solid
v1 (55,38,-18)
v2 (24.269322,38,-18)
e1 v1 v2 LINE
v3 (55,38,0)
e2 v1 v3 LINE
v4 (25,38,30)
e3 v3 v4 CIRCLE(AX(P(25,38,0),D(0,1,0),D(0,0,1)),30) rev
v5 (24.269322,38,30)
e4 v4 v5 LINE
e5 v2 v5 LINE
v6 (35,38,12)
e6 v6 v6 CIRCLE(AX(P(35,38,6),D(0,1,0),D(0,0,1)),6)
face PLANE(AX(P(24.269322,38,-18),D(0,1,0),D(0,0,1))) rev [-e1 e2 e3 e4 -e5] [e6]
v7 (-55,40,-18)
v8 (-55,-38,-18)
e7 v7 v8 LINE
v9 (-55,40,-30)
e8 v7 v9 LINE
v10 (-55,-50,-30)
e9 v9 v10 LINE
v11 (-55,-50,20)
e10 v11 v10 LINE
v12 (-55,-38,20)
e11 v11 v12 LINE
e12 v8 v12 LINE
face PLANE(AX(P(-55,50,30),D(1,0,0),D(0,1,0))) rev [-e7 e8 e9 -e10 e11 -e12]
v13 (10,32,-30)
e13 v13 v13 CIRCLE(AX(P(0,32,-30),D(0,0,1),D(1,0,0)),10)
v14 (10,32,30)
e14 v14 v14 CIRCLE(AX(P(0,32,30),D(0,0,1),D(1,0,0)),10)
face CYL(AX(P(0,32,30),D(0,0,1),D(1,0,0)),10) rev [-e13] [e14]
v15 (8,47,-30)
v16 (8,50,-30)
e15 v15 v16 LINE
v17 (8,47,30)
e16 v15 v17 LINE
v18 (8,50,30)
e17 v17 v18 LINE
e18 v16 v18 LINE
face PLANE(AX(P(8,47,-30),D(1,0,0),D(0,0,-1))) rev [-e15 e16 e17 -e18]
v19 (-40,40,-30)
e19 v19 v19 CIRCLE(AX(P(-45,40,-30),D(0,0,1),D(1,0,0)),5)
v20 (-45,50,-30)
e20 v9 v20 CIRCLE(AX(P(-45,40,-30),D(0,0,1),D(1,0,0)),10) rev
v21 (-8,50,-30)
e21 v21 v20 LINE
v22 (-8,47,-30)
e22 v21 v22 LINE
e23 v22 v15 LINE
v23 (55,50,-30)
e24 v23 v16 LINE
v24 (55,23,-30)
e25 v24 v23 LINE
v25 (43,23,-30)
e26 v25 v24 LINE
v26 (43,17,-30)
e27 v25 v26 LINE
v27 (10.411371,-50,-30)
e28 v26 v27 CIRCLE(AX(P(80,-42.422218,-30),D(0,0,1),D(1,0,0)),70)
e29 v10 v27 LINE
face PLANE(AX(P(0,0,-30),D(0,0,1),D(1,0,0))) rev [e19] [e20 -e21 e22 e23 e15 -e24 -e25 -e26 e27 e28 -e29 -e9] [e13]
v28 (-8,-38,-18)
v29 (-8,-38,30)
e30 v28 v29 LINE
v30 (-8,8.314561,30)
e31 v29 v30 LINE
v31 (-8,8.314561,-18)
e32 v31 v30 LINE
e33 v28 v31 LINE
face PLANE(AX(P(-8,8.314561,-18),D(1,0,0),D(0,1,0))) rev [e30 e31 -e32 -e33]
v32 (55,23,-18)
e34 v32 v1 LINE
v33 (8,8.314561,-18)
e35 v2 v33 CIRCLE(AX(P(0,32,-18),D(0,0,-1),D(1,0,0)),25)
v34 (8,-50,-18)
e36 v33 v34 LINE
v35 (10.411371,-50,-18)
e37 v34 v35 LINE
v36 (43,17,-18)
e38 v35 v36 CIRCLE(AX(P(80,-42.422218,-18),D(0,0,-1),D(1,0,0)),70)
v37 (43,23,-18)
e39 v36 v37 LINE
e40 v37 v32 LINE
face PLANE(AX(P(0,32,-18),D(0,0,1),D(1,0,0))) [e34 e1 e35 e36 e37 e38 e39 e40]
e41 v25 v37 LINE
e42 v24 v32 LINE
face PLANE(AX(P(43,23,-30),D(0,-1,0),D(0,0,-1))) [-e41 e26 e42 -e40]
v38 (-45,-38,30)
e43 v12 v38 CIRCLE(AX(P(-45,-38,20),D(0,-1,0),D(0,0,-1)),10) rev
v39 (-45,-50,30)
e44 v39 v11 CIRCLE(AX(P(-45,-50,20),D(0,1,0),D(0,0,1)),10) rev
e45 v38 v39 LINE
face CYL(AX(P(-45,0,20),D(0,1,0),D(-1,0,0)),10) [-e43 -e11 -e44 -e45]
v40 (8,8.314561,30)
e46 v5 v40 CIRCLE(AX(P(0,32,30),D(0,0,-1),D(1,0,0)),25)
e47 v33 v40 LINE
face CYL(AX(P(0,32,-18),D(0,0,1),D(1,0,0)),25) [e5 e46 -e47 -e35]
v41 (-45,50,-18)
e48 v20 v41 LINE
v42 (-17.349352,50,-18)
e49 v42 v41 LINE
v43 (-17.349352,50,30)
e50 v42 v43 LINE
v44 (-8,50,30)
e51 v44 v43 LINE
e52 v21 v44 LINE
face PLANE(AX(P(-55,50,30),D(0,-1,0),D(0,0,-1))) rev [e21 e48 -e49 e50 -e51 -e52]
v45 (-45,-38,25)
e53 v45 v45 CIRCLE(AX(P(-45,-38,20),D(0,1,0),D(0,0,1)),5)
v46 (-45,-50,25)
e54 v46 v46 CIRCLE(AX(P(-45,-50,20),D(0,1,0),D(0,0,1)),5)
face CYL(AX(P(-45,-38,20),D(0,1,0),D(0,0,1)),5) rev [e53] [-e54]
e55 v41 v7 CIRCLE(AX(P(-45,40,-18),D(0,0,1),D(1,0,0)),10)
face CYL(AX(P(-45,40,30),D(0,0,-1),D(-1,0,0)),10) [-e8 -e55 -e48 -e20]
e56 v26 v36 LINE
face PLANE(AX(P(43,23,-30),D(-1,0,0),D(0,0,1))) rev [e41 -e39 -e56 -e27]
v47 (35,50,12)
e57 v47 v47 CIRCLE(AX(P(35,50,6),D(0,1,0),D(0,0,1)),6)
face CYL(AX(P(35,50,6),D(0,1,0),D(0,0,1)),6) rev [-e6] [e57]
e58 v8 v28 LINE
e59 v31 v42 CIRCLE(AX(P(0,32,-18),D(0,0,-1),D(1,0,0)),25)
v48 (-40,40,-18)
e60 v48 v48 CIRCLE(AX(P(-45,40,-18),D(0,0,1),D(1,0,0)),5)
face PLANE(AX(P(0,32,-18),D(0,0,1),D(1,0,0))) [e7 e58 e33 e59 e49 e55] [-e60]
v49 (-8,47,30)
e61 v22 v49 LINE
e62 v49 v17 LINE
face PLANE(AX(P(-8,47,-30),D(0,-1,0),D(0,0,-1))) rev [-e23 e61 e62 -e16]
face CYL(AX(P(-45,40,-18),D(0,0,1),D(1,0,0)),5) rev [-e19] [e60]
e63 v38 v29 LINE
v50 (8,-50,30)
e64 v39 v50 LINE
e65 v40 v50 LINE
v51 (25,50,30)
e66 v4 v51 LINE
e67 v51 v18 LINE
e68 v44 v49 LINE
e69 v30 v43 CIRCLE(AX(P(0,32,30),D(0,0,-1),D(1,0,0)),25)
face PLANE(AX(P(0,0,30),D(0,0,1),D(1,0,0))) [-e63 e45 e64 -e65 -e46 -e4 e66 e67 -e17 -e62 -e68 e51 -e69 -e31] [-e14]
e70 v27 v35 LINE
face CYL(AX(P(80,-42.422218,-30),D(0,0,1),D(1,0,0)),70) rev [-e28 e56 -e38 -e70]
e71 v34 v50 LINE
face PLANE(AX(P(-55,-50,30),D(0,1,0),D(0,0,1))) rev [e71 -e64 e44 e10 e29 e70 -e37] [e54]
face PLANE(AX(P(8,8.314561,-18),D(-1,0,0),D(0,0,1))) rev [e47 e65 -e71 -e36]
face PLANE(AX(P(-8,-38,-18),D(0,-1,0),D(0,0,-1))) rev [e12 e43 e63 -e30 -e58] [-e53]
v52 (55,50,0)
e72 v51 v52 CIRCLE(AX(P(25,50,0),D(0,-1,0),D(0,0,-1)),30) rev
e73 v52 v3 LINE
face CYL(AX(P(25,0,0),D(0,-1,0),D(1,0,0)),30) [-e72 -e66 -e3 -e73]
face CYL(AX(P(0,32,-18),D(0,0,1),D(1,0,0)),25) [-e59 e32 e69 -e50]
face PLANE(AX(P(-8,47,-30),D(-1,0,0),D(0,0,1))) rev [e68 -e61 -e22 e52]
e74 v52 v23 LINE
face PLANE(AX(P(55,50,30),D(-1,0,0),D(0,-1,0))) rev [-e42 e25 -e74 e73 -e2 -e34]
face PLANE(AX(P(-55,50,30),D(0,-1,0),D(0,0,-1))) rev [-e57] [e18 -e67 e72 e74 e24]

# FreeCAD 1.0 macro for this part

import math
import FreeCAD as App
import Part
import Sketcher


def edges_at(feature, points):
    """Names of the edges that pass closest to the given points."""
    edges = feature.Shape.Edges
    near = lambda p: min(range(len(edges)), key=lambda i: edges[i].distToShape(Part.Vertex(*p))[0])
    return sorted({f"Edge{near(p) + 1}" for p in points})


def add_polygon(sketch, points):
    """Adds a closed chain of lines whose ends are joined by coincident constraints."""
    first, n = sketch.GeometryCount, len(points)
    for a, b in zip(points, points[1:] + points[:1]):
        sketch.addGeometry(Part.LineSegment(App.Vector(*a, 0), App.Vector(*b, 0)), False)
    for i in range(n):
        sketch.addConstraint(Sketcher.Constraint("Coincident", first + i, 2, first + (i + 1) % n, 1))

doc = App.newDocument("Part")
params = doc.addObject("Spreadsheet::Sheet", "Params")
for row, (alias, value) in enumerate([
    ("sketch1_width", "110 mm"),
    ("sketch1_height", "100 mm"),
    ("pad1_length", "60 mm"),
    ("sketch2_radius", "25 mm"),
    ("sketch2_width", "47 mm"),
    ("sketch2_height", "88 mm"),
    ("pocket1_length", "48 mm"),
    ("sketch3_width", "12 mm"),
    ("sketch3_height", "6 mm"),
    ("sketch4_radius", "70 mm"),
    ("sketch4_radius2", "25 mm"),
    ("sketch4_width", "12 mm"),
    ("sketch4_height", "6 mm"),
    ("sketch4_height2", "15 mm"),
    ("pocket3_length", "48 mm"),
    ("sketch5_radius", "70 mm"),
    ("sketch5_width", "12 mm"),
    ("sketch5_height", "67 mm"),
    ("sketch6_diameter", "20 mm"),
    ("hole_diameter", "20 mm"),
    ("fillet_radius", "10 mm"),
    ("fillet2_radius", "30 mm"),
    ("sketch7_diameter", "12 mm"),
    ("hole2_diameter", "12 mm"),
    ("sketch8_diameter", "10 mm"),
    ("hole3_diameter", "10 mm"),
    ("sketch9_diameter", "10 mm"),
    ("hole4_diameter", "10 mm"),
    ("sketch10_width", "16 mm"),
    ("sketch10_height", "3 mm"),
], start=1):
    params.set(f"A{row}", alias)
    params.set(f"B{row}", "=" + value)
    params.setAlias(f"B{row}", alias)

body = doc.addObject("PartDesign::Body", "Body")

sketch1 = body.newObject("Sketcher::SketchObject", "Sketch")
sketch1.AttachmentSupport = (doc.getObject("XY_Plane"), [""])
sketch1.MapMode = "FlatFace"
add_polygon(sketch1, [(-55, 50), (-55, -50), (55, -50), (55, 50)])
sketch1.addConstraint(Sketcher.Constraint("Vertical", 0))
sketch1.addConstraint(Sketcher.Constraint("Horizontal", 1))
sketch1.addConstraint(Sketcher.Constraint("Vertical", 2))
sketch1.addConstraint(Sketcher.Constraint("Horizontal", 3))
sketch1.addConstraint(Sketcher.Constraint("Symmetric", 0, 2, 2, 2, -1, 1))
sketch1.addConstraint(Sketcher.Constraint("DistanceX", 1, 1, 1, 2, 110.0))
sketch1.addConstraint(Sketcher.Constraint("DistanceY", 0, 2, 0, 1, 100.0))
sketch1.setExpression("Constraints[9]", "Params.sketch1_width")
sketch1.setExpression("Constraints[10]", "Params.sketch1_height")
pad1 = body.newObject("PartDesign::Pad", "Pad")
pad1.Profile = sketch1
pad1.setExpression("Length", "Params.pad1_length")
pad1.Midplane = True

sketch2 = body.newObject("Sketcher::SketchObject", "Sketch001")
sketch2.AttachmentSupport = (doc.getObject("XY_Plane"), [""])
sketch2.MapMode = "FlatFace"
sketch2.AttachmentOffset = App.Placement(App.Vector(0, 0, 30), App.Rotation())
sketch2.addGeometry(Part.LineSegment(App.Vector(-8, -38, 0), App.Vector(-8, 8, 0)), False)
sketch2.addGeometry(Part.ArcOfCircle(Part.Circle(App.Vector(0, 32, 0), App.Vector(0, 0, 1), 25), math.radians(134), math.radians(251)), False)
sketch2.addGeometry(Part.LineSegment(App.Vector(-17, 50, 0), App.Vector(-55, 50, 0)), False)
sketch2.addGeometry(Part.LineSegment(App.Vector(-55, 50, 0), App.Vector(-55, -38, 0)), False)
sketch2.addGeometry(Part.LineSegment(App.Vector(-55, -38, 0), App.Vector(-8, -38, 0)), False)
sketch2.addConstraint(Sketcher.Constraint("Coincident", 0, 2, 1, 2))
sketch2.addConstraint(Sketcher.Constraint("Coincident", 1, 1, 2, 1))
sketch2.addConstraint(Sketcher.Constraint("Coincident", 2, 2, 3, 1))
sketch2.addConstraint(Sketcher.Constraint("Coincident", 3, 2, 4, 1))
sketch2.addConstraint(Sketcher.Constraint("Coincident", 4, 2, 0, 1))
sketch2.addConstraint(Sketcher.Constraint("Vertical", 0))
sketch2.addConstraint(Sketcher.Constraint("Horizontal", 2))
sketch2.addConstraint(Sketcher.Constraint("Vertical", 3))
sketch2.addConstraint(Sketcher.Constraint("Horizontal", 4))
sketch2.addConstraint(Sketcher.Constraint("PointOnObject", 1, 3, -2))
sketch2.addConstraint(Sketcher.Constraint("Radius", 1, 25.0))
sketch2.addConstraint(Sketcher.Constraint("DistanceX", 4, 1, 4, 2, 47.0))
sketch2.addConstraint(Sketcher.Constraint("DistanceY", 3, 2, 3, 1, 88.0))
sketch2.addConstraint(Sketcher.Constraint("DistanceY", -1, 1, 1, 3, 32.0))
sketch2.addConstraint(Sketcher.Constraint("DistanceX", 0, 2, -1, 1, 8.0))
sketch2.addConstraint(Sketcher.Constraint("DistanceY", -1, 1, 1, 1, 50.0))
sketch2.setExpression("Constraints[10]", "Params.sketch2_radius")
sketch2.setExpression("Constraints[11]", "Params.sketch2_width")
sketch2.setExpression("Constraints[12]", "Params.sketch2_height")
pocket1 = body.newObject("PartDesign::Pocket", "Pocket")
pocket1.Profile = sketch2
pocket1.setExpression("Length", "Params.pocket1_length")

sketch3 = body.newObject("Sketcher::SketchObject", "Sketch002")
sketch3.AttachmentSupport = (doc.getObject("XY_Plane"), [""])
sketch3.MapMode = "FlatFace"
sketch3.AttachmentOffset = App.Placement(App.Vector(0, 0, 30), App.Rotation())
add_polygon(sketch3, [(43, 23), (43, 17), (55, 17), (55, 23)])
sketch3.addConstraint(Sketcher.Constraint("Vertical", 0))
sketch3.addConstraint(Sketcher.Constraint("Horizontal", 1))
sketch3.addConstraint(Sketcher.Constraint("Vertical", 2))
sketch3.addConstraint(Sketcher.Constraint("Horizontal", 3))
sketch3.addConstraint(Sketcher.Constraint("DistanceX", 1, 1, 1, 2, 12.0))
sketch3.addConstraint(Sketcher.Constraint("DistanceY", 0, 2, 0, 1, 6.0))
sketch3.addConstraint(Sketcher.Constraint("DistanceX", -1, 1, 0, 2, 43.0))
sketch3.addConstraint(Sketcher.Constraint("DistanceY", -1, 1, 0, 2, 17.0))
sketch3.setExpression("Constraints[8]", "Params.sketch3_width")
sketch3.setExpression("Constraints[9]", "Params.sketch3_height")
pocket2 = body.newObject("PartDesign::Pocket", "Pocket001")
pocket2.Profile = sketch3
pocket2.Type = "ThroughAll"

sketch4 = body.newObject("Sketcher::SketchObject", "Sketch003")
sketch4.AttachmentSupport = (doc.getObject("XY_Plane"), [""])
sketch4.MapMode = "FlatFace"
sketch4.AttachmentOffset = App.Placement(App.Vector(0, 0, 30), App.Rotation())
sketch4.addGeometry(Part.LineSegment(App.Vector(8, -50, 0), App.Vector(10.4, -50, 0)), False)
sketch4.addGeometry(Part.ArcOfCircle(Part.Circle(App.Vector(80, -42.4, 0), App.Vector(0, 0, 1), 70), math.radians(122), math.radians(186)), False)
sketch4.addGeometry(Part.LineSegment(App.Vector(43, 17, 0), App.Vector(43, 23, 0)), False)
sketch4.addGeometry(Part.LineSegment(App.Vector(43, 23, 0), App.Vector(55, 23, 0)), False)
sketch4.addGeometry(Part.LineSegment(App.Vector(55, 23, 0), App.Vector(55, 38, 0)), False)
sketch4.addGeometry(Part.LineSegment(App.Vector(55, 38, 0), App.Vector(24.3, 38, 0)), False)
sketch4.addGeometry(Part.ArcOfCircle(Part.Circle(App.Vector(0, 32, 0), App.Vector(0, 0, 1), 25), math.radians(-71), math.radians(14)), False)
sketch4.addGeometry(Part.LineSegment(App.Vector(8, 8.3, 0), App.Vector(8, -50, 0)), False)
sketch4.addConstraint(Sketcher.Constraint("Coincident", 0, 2, 1, 2))
sketch4.addConstraint(Sketcher.Constraint("Coincident", 1, 1, 2, 1))
sketch4.addConstraint(Sketcher.Constraint("Coincident", 2, 2, 3, 1))
sketch4.addConstraint(Sketcher.Constraint("Coincident", 3, 2, 4, 1))
sketch4.addConstraint(Sketcher.Constraint("Coincident", 4, 2, 5, 1))
sketch4.addConstraint(Sketcher.Constraint("Coincident", 5, 2, 6, 2))
sketch4.addConstraint(Sketcher.Constraint("Coincident", 6, 1, 7, 1))
sketch4.addConstraint(Sketcher.Constraint("Coincident", 7, 2, 0, 1))
sketch4.addConstraint(Sketcher.Constraint("Horizontal", 0))
sketch4.addConstraint(Sketcher.Constraint("Vertical", 2))
sketch4.addConstraint(Sketcher.Constraint("Horizontal", 3))
sketch4.addConstraint(Sketcher.Constraint("Vertical", 4))
sketch4.addConstraint(Sketcher.Constraint("Horizontal", 5))
sketch4.addConstraint(Sketcher.Constraint("Vertical", 7))
sketch4.addConstraint(Sketcher.Constraint("PointOnObject", 6, 3, -2))
sketch4.addConstraint(Sketcher.Constraint("Radius", 1, 70.0))
sketch4.addConstraint(Sketcher.Constraint("Radius", 6, 25.0))
sketch4.addConstraint(Sketcher.Constraint("DistanceX", 3, 1, 3, 2, 12.0))
sketch4.addConstraint(Sketcher.Constraint("DistanceY", 2, 1, 2, 2, 6.0))
sketch4.addConstraint(Sketcher.Constraint("DistanceY", 4, 1, 4, 2, 15.0))
sketch4.addConstraint(Sketcher.Constraint("DistanceX", -1, 1, 1, 3, 80.0))
sketch4.addConstraint(Sketcher.Constraint("DistanceY", -1, 1, 6, 3, 32.0))
sketch4.addConstraint(Sketcher.Constraint("DistanceY", 0, 2, -1, 1, 50.0))
sketch4.addConstraint(Sketcher.Constraint("DistanceX", -1, 1, 1, 1, 43.0))
sketch4.addConstraint(Sketcher.Constraint("DistanceY", -1, 1, 1, 1, 17.0))
sketch4.addConstraint(Sketcher.Constraint("DistanceX", -1, 1, 6, 1, 8.0))
sketch4.setExpression("Constraints[15]", "Params.sketch4_radius")
sketch4.setExpression("Constraints[16]", "Params.sketch4_radius2")
sketch4.setExpression("Constraints[17]", "Params.sketch4_width")
sketch4.setExpression("Constraints[18]", "Params.sketch4_height")
sketch4.setExpression("Constraints[19]", "Params.sketch4_height2")
pocket3 = body.newObject("PartDesign::Pocket", "Pocket002")
pocket3.Profile = sketch4
pocket3.setExpression("Length", "Params.pocket3_length")

sketch5 = body.newObject("Sketcher::SketchObject", "Sketch004")
sketch5.AttachmentSupport = (doc.getObject("XY_Plane"), [""])
sketch5.MapMode = "FlatFace"
sketch5.AttachmentOffset = App.Placement(App.Vector(0, 0, 30), App.Rotation())
sketch5.addGeometry(Part.LineSegment(App.Vector(55, -50, 0), App.Vector(55, 17, 0)), False)
sketch5.addGeometry(Part.LineSegment(App.Vector(55, 17, 0), App.Vector(43, 17, 0)), False)
sketch5.addGeometry(Part.ArcOfCircle(Part.Circle(App.Vector(80, -42, 0), App.Vector(0, 0, 1), 70), math.radians(122), math.radians(186)), False)
sketch5.addGeometry(Part.LineSegment(App.Vector(10, -50, 0), App.Vector(55, -50, 0)), False)
sketch5.addConstraint(Sketcher.Constraint("Coincident", 0, 2, 1, 1))
sketch5.addConstraint(Sketcher.Constraint("Coincident", 1, 2, 2, 1))
sketch5.addConstraint(Sketcher.Constraint("Coincident", 2, 2, 3, 1))
sketch5.addConstraint(Sketcher.Constraint("Coincident", 3, 2, 0, 1))
sketch5.addConstraint(Sketcher.Constraint("Vertical", 0))
sketch5.addConstraint(Sketcher.Constraint("Horizontal", 1))
sketch5.addConstraint(Sketcher.Constraint("Horizontal", 3))
sketch5.addConstraint(Sketcher.Constraint("Radius", 2, 70.0))
sketch5.addConstraint(Sketcher.Constraint("DistanceX", 1, 2, 1, 1, 12.0))
sketch5.addConstraint(Sketcher.Constraint("DistanceY", 0, 1, 0, 2, 67.0))
sketch5.addConstraint(Sketcher.Constraint("DistanceX", -1, 1, 2, 3, 80.0))
sketch5.addConstraint(Sketcher.Constraint("DistanceX", -1, 1, 0, 2, 55.0))
sketch5.addConstraint(Sketcher.Constraint("DistanceY", -1, 1, 0, 2, 17.0))
sketch5.setExpression("Constraints[7]", "Params.sketch5_radius")
sketch5.setExpression("Constraints[8]", "Params.sketch5_width")
sketch5.setExpression("Constraints[9]", "Params.sketch5_height")
pocket4 = body.newObject("PartDesign::Pocket", "Pocket003")
pocket4.Profile = sketch5
pocket4.Type = "ThroughAll"

sketch6 = body.newObject("Sketcher::SketchObject", "Sketch005")
sketch6.AttachmentSupport = (doc.getObject("XY_Plane"), [""])
sketch6.MapMode = "FlatFace"
sketch6.AttachmentOffset = App.Placement(App.Vector(0, 0, 30), App.Rotation())
sketch6.addGeometry(Part.Circle(App.Vector(0, 32, 0), App.Vector(0, 0, 1), 10), False)
sketch6.addConstraint(Sketcher.Constraint("PointOnObject", 0, 3, -2))
sketch6.addConstraint(Sketcher.Constraint("Diameter", 0, 20.0))
sketch6.addConstraint(Sketcher.Constraint("DistanceY", -1, 1, 0, 3, 32.0))
sketch6.setExpression("Constraints[1]", "Params.sketch6_diameter")
doc.recompute()
hole = body.newObject("PartDesign::Hole", "Hole")
hole.Profile = sketch6
hole.ThreadType = "None"
hole.setExpression("Diameter", "Params.hole_diameter")
hole.DepthType = "ThroughAll"
doc.recompute()

fillet = body.newObject("PartDesign::Fillet", "Fillet")
fillet.Base = (hole, edges_at(hole, [(-55, -44, 30), (-55, 50, -24)]))
fillet.setExpression("Radius", "Params.fillet_radius")
doc.recompute()

fillet2 = body.newObject("PartDesign::Fillet", "Fillet001")
fillet2.Base = (fillet, edges_at(fillet, [(55, 44, 30)]))
fillet2.setExpression("Radius", "Params.fillet2_radius")

sketch7 = body.newObject("Sketcher::SketchObject", "Sketch006")
sketch7.AttachmentSupport = (doc.getObject("XZ_Plane"), [""])
sketch7.MapMode = "FlatFace"
sketch7.AttachmentOffset = App.Placement(App.Vector(0, 0, -50), App.Rotation())
sketch7.addGeometry(Part.Circle(App.Vector(35, 6, 0), App.Vector(0, 0, 1), 6), False)
sketch7.addConstraint(Sketcher.Constraint("Diameter", 0, 12.0))
sketch7.addConstraint(Sketcher.Constraint("DistanceX", -1, 1, 0, 3, 35.0))
sketch7.addConstraint(Sketcher.Constraint("DistanceY", -1, 1, 0, 3, 6.0))
sketch7.setExpression("Constraints[0]", "Params.sketch7_diameter")
doc.recompute()
hole2 = body.newObject("PartDesign::Hole", "Hole001")
hole2.Profile = sketch7
hole2.ThreadType = "None"
hole2.setExpression("Diameter", "Params.hole2_diameter")
hole2.DepthType = "ThroughAll"
hole2.Reversed = True

sketch8 = body.newObject("Sketcher::SketchObject", "Sketch007")
sketch8.AttachmentSupport = (doc.getObject("XZ_Plane"), [""])
sketch8.MapMode = "FlatFace"
sketch8.AttachmentOffset = App.Placement(App.Vector(0, 0, 38), App.Rotation())
sketch8.addGeometry(Part.Circle(App.Vector(-45, 20, 0), App.Vector(0, 0, 1), 5), False)
sketch8.addConstraint(Sketcher.Constraint("Diameter", 0, 10.0))
sketch8.addConstraint(Sketcher.Constraint("DistanceX", 0, 3, -1, 1, 45.0))
sketch8.addConstraint(Sketcher.Constraint("DistanceY", -1, 1, 0, 3, 20.0))
sketch8.setExpression("Constraints[0]", "Params.sketch8_diameter")
doc.recompute()
hole3 = body.newObject("PartDesign::Hole", "Hole002")
hole3.Profile = sketch8
hole3.ThreadType = "None"
hole3.setExpression("Diameter", "Params.hole3_diameter")
hole3.DepthType = "ThroughAll"
hole3.Reversed = True

sketch9 = body.newObject("Sketcher::SketchObject", "Sketch008")
sketch9.AttachmentSupport = (doc.getObject("XY_Plane"), [""])
sketch9.MapMode = "FlatFace"
sketch9.AttachmentOffset = App.Placement(App.Vector(0, 0, -18), App.Rotation())
sketch9.addGeometry(Part.Circle(App.Vector(-45, 40, 0), App.Vector(0, 0, 1), 5), False)
sketch9.addConstraint(Sketcher.Constraint("Diameter", 0, 10.0))
sketch9.addConstraint(Sketcher.Constraint("DistanceX", 0, 3, -1, 1, 45.0))
sketch9.addConstraint(Sketcher.Constraint("DistanceY", -1, 1, 0, 3, 40.0))
sketch9.setExpression("Constraints[0]", "Params.sketch9_diameter")
doc.recompute()
hole4 = body.newObject("PartDesign::Hole", "Hole003")
hole4.Profile = sketch9
hole4.ThreadType = "None"
hole4.setExpression("Diameter", "Params.hole4_diameter")
hole4.DepthType = "ThroughAll"

sketch10 = body.newObject("Sketcher::SketchObject", "Sketch009")
sketch10.AttachmentSupport = (doc.getObject("XY_Plane"), [""])
sketch10.MapMode = "FlatFace"
sketch10.AttachmentOffset = App.Placement(App.Vector(0, 0, 30), App.Rotation())
add_polygon(sketch10, [(-8, 50), (-8, 47), (8, 47), (8, 50)])
sketch10.addConstraint(Sketcher.Constraint("Vertical", 0))
sketch10.addConstraint(Sketcher.Constraint("Horizontal", 1))
sketch10.addConstraint(Sketcher.Constraint("Vertical", 2))
sketch10.addConstraint(Sketcher.Constraint("Horizontal", 3))
sketch10.addConstraint(Sketcher.Constraint("DistanceX", 1, 1, 1, 2, 16.0))
sketch10.addConstraint(Sketcher.Constraint("DistanceY", 0, 2, 0, 1, 3.0))
sketch10.addConstraint(Sketcher.Constraint("DistanceX", 0, 2, -1, 1, 8.0))
sketch10.addConstraint(Sketcher.Constraint("DistanceY", -1, 1, 0, 2, 47.0))
sketch10.setExpression("Constraints[8]", "Params.sketch10_width")
sketch10.setExpression("Constraints[9]", "Params.sketch10_height")
pocket5 = body.newObject("PartDesign::Pocket", "Pocket004")
pocket5.Profile = sketch10
pocket5.Type = "ThroughAll"

doc.recompute()
